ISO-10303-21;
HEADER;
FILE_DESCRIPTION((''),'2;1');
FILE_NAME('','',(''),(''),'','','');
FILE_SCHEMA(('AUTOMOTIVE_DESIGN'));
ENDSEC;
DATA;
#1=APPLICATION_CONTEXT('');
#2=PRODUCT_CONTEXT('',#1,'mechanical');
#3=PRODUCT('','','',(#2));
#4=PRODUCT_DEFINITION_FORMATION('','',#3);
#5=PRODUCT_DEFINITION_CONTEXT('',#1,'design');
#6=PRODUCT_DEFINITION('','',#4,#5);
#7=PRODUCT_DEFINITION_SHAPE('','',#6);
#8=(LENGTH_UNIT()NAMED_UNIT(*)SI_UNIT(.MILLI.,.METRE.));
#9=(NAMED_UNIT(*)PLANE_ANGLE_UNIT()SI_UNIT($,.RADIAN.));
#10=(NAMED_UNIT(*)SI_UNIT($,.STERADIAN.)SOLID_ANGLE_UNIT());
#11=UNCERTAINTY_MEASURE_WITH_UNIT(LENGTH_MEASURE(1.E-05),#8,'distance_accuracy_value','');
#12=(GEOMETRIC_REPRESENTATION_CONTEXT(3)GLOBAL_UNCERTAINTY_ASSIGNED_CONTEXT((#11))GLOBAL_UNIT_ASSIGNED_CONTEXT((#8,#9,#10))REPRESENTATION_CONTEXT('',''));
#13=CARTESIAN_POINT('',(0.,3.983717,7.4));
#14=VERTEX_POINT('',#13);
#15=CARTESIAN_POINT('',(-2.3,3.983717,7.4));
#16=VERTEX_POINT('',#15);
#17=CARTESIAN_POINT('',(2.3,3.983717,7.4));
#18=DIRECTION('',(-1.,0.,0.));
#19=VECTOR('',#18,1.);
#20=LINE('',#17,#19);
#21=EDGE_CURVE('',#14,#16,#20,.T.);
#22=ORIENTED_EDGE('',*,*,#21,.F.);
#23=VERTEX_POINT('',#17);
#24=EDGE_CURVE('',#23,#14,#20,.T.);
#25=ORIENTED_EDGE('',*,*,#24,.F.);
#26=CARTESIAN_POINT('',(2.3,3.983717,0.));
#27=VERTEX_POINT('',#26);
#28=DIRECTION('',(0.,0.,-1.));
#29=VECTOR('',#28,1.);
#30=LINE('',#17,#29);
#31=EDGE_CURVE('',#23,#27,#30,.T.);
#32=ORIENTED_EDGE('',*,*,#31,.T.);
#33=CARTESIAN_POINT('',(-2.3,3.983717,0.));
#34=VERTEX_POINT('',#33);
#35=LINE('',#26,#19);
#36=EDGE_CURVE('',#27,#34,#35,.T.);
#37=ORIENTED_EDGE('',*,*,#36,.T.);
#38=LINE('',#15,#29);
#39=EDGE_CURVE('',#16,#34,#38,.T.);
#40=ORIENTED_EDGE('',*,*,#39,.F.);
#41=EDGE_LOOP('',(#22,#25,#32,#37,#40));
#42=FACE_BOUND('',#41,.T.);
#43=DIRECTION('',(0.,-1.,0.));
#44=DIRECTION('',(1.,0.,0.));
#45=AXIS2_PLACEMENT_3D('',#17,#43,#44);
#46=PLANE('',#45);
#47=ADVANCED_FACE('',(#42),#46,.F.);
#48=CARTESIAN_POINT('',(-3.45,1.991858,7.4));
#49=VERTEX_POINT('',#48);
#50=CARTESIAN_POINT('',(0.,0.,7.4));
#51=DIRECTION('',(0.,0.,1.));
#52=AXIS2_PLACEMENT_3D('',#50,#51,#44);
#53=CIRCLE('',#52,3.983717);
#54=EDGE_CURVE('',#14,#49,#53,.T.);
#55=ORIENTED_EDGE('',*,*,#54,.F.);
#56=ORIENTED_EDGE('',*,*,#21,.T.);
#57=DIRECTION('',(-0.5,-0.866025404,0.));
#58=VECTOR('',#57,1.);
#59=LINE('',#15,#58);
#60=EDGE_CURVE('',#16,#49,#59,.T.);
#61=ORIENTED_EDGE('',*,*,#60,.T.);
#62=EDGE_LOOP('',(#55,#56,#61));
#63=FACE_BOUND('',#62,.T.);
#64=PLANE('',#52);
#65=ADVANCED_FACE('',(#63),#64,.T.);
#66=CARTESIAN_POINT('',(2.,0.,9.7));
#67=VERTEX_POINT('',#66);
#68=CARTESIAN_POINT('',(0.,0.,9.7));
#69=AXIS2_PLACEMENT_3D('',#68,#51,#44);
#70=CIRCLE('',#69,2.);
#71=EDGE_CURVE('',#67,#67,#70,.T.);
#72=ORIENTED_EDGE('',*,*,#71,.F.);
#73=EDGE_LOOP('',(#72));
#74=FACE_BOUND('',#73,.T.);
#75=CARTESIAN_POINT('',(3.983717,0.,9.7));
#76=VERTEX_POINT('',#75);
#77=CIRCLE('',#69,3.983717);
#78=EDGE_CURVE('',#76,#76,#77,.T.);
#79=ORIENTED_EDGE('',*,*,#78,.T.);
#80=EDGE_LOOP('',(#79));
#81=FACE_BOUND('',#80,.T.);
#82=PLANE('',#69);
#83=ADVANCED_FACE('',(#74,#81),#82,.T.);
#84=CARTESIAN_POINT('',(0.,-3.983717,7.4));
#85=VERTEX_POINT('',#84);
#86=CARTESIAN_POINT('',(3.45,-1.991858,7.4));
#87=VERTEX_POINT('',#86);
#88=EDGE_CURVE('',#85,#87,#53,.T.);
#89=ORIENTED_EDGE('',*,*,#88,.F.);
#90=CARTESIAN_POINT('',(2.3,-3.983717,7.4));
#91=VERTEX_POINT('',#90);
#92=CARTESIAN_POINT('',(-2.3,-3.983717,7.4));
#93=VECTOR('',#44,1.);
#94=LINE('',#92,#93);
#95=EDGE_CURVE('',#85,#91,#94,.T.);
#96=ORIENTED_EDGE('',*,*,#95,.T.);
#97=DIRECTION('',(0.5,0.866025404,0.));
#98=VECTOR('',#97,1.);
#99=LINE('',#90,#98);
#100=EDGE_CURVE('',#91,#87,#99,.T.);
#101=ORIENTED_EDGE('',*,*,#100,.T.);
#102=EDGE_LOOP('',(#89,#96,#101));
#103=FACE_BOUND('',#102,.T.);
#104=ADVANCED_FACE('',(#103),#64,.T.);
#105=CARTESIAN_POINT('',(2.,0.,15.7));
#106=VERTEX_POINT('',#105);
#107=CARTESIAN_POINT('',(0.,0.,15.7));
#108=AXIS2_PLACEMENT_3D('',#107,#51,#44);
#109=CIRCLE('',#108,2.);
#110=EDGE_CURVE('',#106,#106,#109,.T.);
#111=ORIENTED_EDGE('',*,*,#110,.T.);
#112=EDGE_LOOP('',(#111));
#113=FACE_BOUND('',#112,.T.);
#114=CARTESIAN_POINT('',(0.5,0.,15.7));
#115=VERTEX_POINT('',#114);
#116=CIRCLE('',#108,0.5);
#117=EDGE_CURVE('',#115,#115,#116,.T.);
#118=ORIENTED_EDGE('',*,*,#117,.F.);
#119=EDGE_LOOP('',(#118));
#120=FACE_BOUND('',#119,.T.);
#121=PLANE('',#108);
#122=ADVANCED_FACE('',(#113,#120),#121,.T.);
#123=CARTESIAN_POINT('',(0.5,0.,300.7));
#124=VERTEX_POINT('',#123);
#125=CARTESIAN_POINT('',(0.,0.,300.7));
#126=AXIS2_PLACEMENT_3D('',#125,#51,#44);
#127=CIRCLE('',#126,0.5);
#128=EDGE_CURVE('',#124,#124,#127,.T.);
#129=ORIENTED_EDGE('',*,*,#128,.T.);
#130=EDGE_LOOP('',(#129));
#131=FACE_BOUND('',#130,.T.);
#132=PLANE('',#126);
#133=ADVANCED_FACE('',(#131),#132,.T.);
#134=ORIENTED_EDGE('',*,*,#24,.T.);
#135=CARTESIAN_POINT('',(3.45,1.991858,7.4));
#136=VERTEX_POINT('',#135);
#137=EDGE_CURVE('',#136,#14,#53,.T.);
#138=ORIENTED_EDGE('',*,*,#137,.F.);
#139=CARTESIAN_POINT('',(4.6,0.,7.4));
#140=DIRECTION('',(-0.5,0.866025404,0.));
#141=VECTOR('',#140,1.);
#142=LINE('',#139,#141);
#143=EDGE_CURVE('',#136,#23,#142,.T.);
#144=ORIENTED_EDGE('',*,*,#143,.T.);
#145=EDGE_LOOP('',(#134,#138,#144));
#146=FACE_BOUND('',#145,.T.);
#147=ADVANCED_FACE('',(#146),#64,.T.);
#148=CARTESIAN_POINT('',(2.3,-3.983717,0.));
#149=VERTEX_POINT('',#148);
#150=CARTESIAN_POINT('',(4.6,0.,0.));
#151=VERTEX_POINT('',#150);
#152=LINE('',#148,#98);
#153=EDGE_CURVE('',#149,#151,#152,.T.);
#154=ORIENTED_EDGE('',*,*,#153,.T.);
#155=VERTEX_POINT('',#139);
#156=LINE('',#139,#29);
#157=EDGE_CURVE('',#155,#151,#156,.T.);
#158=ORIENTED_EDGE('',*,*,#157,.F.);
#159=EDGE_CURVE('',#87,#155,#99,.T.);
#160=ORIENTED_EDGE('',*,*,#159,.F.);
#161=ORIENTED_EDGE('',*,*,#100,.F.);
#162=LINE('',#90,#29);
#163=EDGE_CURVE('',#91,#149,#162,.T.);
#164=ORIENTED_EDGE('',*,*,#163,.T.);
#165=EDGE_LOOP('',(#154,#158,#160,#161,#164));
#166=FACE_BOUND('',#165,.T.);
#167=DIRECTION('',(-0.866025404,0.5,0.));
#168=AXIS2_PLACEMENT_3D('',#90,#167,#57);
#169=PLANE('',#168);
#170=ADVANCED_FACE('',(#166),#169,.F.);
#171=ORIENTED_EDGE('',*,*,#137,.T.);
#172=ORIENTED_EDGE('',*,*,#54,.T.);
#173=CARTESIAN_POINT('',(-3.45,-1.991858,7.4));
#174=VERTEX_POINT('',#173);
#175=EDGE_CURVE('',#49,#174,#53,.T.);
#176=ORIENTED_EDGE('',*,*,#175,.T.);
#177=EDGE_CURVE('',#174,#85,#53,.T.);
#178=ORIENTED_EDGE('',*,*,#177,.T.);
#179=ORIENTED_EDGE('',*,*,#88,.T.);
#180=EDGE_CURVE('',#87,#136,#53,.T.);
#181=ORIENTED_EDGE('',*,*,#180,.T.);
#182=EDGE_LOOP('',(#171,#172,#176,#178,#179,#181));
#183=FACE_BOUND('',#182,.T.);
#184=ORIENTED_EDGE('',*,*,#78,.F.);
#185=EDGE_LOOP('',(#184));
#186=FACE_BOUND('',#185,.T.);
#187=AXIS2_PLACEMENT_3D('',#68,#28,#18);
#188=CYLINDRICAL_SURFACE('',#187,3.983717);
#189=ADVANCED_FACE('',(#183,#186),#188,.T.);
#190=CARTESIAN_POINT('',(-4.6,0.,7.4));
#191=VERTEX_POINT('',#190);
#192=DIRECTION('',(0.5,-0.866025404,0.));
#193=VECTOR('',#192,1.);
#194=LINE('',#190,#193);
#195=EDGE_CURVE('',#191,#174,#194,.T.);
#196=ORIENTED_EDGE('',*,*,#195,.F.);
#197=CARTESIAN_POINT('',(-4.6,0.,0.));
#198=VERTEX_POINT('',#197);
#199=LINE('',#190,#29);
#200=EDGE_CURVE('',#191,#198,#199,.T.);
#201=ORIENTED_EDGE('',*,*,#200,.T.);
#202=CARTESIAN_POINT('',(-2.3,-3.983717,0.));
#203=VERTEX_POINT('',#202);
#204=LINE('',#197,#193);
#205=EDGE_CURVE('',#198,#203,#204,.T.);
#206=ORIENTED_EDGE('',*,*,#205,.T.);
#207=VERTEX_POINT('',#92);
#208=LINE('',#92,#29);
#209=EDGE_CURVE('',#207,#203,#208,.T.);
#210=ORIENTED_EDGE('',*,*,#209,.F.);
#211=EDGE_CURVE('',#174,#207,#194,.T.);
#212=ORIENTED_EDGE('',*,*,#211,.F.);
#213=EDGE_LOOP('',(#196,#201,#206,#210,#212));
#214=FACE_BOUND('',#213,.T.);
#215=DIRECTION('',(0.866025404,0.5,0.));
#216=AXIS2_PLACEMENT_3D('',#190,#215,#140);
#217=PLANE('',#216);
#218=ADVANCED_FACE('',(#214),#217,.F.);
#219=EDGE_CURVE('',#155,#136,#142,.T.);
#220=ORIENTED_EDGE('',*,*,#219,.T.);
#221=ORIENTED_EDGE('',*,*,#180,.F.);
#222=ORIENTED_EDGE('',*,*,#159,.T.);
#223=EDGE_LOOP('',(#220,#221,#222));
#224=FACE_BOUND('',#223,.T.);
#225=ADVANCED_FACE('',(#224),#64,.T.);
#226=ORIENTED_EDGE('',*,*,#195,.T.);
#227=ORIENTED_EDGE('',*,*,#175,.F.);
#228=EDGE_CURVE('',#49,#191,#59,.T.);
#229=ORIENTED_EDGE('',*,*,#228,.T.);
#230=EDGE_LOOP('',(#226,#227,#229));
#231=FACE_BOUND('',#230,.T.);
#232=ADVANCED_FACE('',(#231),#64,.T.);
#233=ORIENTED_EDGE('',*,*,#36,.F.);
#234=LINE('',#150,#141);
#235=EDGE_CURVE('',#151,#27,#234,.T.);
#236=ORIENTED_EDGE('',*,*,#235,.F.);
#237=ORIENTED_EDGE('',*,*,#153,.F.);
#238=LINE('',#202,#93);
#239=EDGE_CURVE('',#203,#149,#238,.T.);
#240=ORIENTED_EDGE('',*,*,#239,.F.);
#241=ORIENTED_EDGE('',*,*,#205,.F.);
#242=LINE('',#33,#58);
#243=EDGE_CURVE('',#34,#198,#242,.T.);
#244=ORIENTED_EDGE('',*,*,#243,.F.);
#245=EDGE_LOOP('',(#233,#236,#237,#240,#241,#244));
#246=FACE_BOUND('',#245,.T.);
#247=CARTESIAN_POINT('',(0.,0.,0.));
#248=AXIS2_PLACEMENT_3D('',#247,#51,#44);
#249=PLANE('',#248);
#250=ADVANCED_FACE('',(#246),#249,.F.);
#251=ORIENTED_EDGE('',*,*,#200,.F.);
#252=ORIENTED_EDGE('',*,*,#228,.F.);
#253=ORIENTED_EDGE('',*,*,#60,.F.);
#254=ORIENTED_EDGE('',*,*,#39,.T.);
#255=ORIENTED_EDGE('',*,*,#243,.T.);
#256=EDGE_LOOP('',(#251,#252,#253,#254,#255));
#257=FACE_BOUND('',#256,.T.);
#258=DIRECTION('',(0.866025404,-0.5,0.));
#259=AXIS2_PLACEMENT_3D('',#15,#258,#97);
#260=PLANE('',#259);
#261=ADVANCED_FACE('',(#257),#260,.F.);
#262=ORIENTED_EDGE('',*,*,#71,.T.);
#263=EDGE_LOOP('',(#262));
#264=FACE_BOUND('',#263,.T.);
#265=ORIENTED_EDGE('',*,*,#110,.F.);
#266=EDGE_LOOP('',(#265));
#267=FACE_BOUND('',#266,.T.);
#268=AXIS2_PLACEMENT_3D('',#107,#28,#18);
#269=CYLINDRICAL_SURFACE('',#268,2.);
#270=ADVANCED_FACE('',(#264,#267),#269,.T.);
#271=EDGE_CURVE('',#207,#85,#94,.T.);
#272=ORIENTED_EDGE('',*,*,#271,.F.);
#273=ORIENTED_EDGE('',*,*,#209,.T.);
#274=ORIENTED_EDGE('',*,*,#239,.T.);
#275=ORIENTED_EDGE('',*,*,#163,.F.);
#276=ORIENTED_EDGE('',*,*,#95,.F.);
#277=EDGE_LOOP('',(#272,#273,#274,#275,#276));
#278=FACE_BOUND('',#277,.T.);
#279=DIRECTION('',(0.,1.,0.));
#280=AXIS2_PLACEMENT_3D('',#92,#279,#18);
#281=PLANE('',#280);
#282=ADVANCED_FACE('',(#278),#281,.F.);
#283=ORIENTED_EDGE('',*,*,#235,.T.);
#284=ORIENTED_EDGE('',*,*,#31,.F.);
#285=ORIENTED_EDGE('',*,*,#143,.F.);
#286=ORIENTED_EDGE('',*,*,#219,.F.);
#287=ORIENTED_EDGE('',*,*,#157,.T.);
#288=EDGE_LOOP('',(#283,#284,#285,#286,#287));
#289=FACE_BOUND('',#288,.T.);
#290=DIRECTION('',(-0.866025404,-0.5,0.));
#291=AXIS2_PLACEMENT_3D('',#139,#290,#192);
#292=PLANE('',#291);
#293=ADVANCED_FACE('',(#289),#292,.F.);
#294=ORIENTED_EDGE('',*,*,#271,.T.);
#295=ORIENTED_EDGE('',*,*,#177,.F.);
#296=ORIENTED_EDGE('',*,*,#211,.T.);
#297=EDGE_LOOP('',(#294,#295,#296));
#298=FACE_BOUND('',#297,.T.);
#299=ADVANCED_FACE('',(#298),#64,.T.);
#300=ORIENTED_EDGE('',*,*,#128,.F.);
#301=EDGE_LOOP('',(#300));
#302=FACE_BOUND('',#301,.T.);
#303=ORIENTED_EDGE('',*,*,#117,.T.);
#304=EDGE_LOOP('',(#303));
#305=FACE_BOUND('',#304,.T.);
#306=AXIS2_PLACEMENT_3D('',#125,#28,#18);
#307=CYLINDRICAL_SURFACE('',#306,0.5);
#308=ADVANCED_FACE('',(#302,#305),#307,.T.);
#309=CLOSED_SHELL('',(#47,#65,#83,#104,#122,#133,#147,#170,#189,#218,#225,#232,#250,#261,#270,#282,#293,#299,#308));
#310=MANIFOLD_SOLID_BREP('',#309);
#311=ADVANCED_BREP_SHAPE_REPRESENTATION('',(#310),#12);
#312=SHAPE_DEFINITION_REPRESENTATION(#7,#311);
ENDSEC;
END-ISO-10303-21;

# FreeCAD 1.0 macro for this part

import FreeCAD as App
import Part
import Sketcher
Q = App.Units.Quantity

doc = App.newDocument("Part")
body = doc.addObject("PartDesign::Body", "Body")

sketch1 = body.newObject("Sketcher::SketchObject", "Sketch")
sketch1.AttachmentSupport = (doc.getObject("XY_Plane"), [""])
sketch1.MapMode = "FlatFace"
sketch1.addGeometry([
    Part.LineSegment(App.Vector(2.3, -4, 0), App.Vector(4.6, 0, 0)),
    Part.LineSegment(App.Vector(4.6, 0, 0), App.Vector(2.3, 4, 0)),
    Part.LineSegment(App.Vector(2.3, 4, 0), App.Vector(-2.3, 4, 0)),
    Part.LineSegment(App.Vector(-2.3, 4, 0), App.Vector(-4.6, 0, 0)),
    Part.LineSegment(App.Vector(-4.6, 0, 0), App.Vector(-2.3, -4, 0)),
    Part.LineSegment(App.Vector(-2.3, -4, 0), App.Vector(2.3, -4, 0)),
], False)
sketch1.addConstraint([
    Sketcher.Constraint("Coincident", 0, 2, 1, 1),
    Sketcher.Constraint("Coincident", 1, 2, 2, 1),
    Sketcher.Constraint("Coincident", 2, 2, 3, 1),
    Sketcher.Constraint("Coincident", 3, 2, 4, 1),
    Sketcher.Constraint("Coincident", 4, 2, 5, 1),
    Sketcher.Constraint("Coincident", 5, 2, 0, 1),
    Sketcher.Constraint("Horizontal", 2),
    Sketcher.Constraint("Horizontal", 5),
    Sketcher.Constraint("Symmetric", 0, 2, 3, 2, -1, 1),
    Sketcher.Constraint("Symmetric", 1, 2, 4, 2, -1, 1),
    Sketcher.Constraint("PointOnObject", 0, 2, -1),
    Sketcher.Constraint("Parallel", 0, 3),
    Sketcher.Constraint("Vertical", 2, 2, 4, 2),
    Sketcher.Constraint("Angle", 0, Q("60 deg")),
    Sketcher.Constraint("DistanceX", 2, 2, 2, 1, Q("4.6 mm")),
    Sketcher.Constraint("Distance", 0, Q("4.6 mm")),
])
pad1 = body.newObject("PartDesign::Pad", "Pad")
pad1.Profile = sketch1
pad1.Length = 7.4

sketch2 = body.newObject("Sketcher::SketchObject", "Sketch001")
sketch2.AttachmentSupport = (doc.getObject("XY_Plane"), [""])
sketch2.MapMode = "FlatFace"
sketch2.AttachmentOffset = App.Placement(App.Vector(0, 0, 7.4), App.Rotation())
sketch2.addGeometry(Part.Circle(App.Vector(0, 0, 0), App.Vector(0, 0, 1), 4), False)
sketch2.addConstraint([
    Sketcher.Constraint("Coincident", 0, 3, -1, 1),
    Sketcher.Constraint("Diameter", 0, Q("7.967434 mm")),
])
pad2 = body.newObject("PartDesign::Pad", "Pad001")
pad2.Profile = sketch2
pad2.Length = 2.3

sketch3 = body.newObject("Sketcher::SketchObject", "Sketch002")
sketch3.AttachmentSupport = (doc.getObject("XY_Plane"), [""])
sketch3.MapMode = "FlatFace"
sketch3.AttachmentOffset = App.Placement(App.Vector(0, 0, 9.7), App.Rotation())
sketch3.addGeometry(Part.Circle(App.Vector(0, 0, 0), App.Vector(0, 0, 1), 2), False)
sketch3.addConstraint([
    Sketcher.Constraint("Coincident", 0, 3, -1, 1),
    Sketcher.Constraint("Diameter", 0, Q("4 mm")),
])
pad3 = body.newObject("PartDesign::Pad", "Pad002")
pad3.Profile = sketch3
pad3.Length = 6

sketch4 = body.newObject("Sketcher::SketchObject", "Sketch003")
sketch4.AttachmentSupport = (doc.getObject("XY_Plane"), [""])
sketch4.MapMode = "FlatFace"
sketch4.AttachmentOffset = App.Placement(App.Vector(0, 0, 15.7), App.Rotation())
sketch4.addGeometry(Part.Circle(App.Vector(0, 0, 0), App.Vector(0, 0, 1), 0.5), False)
sketch4.addConstraint([
    Sketcher.Constraint("Coincident", 0, 3, -1, 1),
    Sketcher.Constraint("Diameter", 0, Q("1 mm")),
])
pad4 = body.newObject("PartDesign::Pad", "Pad003")
pad4.Profile = sketch4
pad4.Length = 285

doc.recompute()
